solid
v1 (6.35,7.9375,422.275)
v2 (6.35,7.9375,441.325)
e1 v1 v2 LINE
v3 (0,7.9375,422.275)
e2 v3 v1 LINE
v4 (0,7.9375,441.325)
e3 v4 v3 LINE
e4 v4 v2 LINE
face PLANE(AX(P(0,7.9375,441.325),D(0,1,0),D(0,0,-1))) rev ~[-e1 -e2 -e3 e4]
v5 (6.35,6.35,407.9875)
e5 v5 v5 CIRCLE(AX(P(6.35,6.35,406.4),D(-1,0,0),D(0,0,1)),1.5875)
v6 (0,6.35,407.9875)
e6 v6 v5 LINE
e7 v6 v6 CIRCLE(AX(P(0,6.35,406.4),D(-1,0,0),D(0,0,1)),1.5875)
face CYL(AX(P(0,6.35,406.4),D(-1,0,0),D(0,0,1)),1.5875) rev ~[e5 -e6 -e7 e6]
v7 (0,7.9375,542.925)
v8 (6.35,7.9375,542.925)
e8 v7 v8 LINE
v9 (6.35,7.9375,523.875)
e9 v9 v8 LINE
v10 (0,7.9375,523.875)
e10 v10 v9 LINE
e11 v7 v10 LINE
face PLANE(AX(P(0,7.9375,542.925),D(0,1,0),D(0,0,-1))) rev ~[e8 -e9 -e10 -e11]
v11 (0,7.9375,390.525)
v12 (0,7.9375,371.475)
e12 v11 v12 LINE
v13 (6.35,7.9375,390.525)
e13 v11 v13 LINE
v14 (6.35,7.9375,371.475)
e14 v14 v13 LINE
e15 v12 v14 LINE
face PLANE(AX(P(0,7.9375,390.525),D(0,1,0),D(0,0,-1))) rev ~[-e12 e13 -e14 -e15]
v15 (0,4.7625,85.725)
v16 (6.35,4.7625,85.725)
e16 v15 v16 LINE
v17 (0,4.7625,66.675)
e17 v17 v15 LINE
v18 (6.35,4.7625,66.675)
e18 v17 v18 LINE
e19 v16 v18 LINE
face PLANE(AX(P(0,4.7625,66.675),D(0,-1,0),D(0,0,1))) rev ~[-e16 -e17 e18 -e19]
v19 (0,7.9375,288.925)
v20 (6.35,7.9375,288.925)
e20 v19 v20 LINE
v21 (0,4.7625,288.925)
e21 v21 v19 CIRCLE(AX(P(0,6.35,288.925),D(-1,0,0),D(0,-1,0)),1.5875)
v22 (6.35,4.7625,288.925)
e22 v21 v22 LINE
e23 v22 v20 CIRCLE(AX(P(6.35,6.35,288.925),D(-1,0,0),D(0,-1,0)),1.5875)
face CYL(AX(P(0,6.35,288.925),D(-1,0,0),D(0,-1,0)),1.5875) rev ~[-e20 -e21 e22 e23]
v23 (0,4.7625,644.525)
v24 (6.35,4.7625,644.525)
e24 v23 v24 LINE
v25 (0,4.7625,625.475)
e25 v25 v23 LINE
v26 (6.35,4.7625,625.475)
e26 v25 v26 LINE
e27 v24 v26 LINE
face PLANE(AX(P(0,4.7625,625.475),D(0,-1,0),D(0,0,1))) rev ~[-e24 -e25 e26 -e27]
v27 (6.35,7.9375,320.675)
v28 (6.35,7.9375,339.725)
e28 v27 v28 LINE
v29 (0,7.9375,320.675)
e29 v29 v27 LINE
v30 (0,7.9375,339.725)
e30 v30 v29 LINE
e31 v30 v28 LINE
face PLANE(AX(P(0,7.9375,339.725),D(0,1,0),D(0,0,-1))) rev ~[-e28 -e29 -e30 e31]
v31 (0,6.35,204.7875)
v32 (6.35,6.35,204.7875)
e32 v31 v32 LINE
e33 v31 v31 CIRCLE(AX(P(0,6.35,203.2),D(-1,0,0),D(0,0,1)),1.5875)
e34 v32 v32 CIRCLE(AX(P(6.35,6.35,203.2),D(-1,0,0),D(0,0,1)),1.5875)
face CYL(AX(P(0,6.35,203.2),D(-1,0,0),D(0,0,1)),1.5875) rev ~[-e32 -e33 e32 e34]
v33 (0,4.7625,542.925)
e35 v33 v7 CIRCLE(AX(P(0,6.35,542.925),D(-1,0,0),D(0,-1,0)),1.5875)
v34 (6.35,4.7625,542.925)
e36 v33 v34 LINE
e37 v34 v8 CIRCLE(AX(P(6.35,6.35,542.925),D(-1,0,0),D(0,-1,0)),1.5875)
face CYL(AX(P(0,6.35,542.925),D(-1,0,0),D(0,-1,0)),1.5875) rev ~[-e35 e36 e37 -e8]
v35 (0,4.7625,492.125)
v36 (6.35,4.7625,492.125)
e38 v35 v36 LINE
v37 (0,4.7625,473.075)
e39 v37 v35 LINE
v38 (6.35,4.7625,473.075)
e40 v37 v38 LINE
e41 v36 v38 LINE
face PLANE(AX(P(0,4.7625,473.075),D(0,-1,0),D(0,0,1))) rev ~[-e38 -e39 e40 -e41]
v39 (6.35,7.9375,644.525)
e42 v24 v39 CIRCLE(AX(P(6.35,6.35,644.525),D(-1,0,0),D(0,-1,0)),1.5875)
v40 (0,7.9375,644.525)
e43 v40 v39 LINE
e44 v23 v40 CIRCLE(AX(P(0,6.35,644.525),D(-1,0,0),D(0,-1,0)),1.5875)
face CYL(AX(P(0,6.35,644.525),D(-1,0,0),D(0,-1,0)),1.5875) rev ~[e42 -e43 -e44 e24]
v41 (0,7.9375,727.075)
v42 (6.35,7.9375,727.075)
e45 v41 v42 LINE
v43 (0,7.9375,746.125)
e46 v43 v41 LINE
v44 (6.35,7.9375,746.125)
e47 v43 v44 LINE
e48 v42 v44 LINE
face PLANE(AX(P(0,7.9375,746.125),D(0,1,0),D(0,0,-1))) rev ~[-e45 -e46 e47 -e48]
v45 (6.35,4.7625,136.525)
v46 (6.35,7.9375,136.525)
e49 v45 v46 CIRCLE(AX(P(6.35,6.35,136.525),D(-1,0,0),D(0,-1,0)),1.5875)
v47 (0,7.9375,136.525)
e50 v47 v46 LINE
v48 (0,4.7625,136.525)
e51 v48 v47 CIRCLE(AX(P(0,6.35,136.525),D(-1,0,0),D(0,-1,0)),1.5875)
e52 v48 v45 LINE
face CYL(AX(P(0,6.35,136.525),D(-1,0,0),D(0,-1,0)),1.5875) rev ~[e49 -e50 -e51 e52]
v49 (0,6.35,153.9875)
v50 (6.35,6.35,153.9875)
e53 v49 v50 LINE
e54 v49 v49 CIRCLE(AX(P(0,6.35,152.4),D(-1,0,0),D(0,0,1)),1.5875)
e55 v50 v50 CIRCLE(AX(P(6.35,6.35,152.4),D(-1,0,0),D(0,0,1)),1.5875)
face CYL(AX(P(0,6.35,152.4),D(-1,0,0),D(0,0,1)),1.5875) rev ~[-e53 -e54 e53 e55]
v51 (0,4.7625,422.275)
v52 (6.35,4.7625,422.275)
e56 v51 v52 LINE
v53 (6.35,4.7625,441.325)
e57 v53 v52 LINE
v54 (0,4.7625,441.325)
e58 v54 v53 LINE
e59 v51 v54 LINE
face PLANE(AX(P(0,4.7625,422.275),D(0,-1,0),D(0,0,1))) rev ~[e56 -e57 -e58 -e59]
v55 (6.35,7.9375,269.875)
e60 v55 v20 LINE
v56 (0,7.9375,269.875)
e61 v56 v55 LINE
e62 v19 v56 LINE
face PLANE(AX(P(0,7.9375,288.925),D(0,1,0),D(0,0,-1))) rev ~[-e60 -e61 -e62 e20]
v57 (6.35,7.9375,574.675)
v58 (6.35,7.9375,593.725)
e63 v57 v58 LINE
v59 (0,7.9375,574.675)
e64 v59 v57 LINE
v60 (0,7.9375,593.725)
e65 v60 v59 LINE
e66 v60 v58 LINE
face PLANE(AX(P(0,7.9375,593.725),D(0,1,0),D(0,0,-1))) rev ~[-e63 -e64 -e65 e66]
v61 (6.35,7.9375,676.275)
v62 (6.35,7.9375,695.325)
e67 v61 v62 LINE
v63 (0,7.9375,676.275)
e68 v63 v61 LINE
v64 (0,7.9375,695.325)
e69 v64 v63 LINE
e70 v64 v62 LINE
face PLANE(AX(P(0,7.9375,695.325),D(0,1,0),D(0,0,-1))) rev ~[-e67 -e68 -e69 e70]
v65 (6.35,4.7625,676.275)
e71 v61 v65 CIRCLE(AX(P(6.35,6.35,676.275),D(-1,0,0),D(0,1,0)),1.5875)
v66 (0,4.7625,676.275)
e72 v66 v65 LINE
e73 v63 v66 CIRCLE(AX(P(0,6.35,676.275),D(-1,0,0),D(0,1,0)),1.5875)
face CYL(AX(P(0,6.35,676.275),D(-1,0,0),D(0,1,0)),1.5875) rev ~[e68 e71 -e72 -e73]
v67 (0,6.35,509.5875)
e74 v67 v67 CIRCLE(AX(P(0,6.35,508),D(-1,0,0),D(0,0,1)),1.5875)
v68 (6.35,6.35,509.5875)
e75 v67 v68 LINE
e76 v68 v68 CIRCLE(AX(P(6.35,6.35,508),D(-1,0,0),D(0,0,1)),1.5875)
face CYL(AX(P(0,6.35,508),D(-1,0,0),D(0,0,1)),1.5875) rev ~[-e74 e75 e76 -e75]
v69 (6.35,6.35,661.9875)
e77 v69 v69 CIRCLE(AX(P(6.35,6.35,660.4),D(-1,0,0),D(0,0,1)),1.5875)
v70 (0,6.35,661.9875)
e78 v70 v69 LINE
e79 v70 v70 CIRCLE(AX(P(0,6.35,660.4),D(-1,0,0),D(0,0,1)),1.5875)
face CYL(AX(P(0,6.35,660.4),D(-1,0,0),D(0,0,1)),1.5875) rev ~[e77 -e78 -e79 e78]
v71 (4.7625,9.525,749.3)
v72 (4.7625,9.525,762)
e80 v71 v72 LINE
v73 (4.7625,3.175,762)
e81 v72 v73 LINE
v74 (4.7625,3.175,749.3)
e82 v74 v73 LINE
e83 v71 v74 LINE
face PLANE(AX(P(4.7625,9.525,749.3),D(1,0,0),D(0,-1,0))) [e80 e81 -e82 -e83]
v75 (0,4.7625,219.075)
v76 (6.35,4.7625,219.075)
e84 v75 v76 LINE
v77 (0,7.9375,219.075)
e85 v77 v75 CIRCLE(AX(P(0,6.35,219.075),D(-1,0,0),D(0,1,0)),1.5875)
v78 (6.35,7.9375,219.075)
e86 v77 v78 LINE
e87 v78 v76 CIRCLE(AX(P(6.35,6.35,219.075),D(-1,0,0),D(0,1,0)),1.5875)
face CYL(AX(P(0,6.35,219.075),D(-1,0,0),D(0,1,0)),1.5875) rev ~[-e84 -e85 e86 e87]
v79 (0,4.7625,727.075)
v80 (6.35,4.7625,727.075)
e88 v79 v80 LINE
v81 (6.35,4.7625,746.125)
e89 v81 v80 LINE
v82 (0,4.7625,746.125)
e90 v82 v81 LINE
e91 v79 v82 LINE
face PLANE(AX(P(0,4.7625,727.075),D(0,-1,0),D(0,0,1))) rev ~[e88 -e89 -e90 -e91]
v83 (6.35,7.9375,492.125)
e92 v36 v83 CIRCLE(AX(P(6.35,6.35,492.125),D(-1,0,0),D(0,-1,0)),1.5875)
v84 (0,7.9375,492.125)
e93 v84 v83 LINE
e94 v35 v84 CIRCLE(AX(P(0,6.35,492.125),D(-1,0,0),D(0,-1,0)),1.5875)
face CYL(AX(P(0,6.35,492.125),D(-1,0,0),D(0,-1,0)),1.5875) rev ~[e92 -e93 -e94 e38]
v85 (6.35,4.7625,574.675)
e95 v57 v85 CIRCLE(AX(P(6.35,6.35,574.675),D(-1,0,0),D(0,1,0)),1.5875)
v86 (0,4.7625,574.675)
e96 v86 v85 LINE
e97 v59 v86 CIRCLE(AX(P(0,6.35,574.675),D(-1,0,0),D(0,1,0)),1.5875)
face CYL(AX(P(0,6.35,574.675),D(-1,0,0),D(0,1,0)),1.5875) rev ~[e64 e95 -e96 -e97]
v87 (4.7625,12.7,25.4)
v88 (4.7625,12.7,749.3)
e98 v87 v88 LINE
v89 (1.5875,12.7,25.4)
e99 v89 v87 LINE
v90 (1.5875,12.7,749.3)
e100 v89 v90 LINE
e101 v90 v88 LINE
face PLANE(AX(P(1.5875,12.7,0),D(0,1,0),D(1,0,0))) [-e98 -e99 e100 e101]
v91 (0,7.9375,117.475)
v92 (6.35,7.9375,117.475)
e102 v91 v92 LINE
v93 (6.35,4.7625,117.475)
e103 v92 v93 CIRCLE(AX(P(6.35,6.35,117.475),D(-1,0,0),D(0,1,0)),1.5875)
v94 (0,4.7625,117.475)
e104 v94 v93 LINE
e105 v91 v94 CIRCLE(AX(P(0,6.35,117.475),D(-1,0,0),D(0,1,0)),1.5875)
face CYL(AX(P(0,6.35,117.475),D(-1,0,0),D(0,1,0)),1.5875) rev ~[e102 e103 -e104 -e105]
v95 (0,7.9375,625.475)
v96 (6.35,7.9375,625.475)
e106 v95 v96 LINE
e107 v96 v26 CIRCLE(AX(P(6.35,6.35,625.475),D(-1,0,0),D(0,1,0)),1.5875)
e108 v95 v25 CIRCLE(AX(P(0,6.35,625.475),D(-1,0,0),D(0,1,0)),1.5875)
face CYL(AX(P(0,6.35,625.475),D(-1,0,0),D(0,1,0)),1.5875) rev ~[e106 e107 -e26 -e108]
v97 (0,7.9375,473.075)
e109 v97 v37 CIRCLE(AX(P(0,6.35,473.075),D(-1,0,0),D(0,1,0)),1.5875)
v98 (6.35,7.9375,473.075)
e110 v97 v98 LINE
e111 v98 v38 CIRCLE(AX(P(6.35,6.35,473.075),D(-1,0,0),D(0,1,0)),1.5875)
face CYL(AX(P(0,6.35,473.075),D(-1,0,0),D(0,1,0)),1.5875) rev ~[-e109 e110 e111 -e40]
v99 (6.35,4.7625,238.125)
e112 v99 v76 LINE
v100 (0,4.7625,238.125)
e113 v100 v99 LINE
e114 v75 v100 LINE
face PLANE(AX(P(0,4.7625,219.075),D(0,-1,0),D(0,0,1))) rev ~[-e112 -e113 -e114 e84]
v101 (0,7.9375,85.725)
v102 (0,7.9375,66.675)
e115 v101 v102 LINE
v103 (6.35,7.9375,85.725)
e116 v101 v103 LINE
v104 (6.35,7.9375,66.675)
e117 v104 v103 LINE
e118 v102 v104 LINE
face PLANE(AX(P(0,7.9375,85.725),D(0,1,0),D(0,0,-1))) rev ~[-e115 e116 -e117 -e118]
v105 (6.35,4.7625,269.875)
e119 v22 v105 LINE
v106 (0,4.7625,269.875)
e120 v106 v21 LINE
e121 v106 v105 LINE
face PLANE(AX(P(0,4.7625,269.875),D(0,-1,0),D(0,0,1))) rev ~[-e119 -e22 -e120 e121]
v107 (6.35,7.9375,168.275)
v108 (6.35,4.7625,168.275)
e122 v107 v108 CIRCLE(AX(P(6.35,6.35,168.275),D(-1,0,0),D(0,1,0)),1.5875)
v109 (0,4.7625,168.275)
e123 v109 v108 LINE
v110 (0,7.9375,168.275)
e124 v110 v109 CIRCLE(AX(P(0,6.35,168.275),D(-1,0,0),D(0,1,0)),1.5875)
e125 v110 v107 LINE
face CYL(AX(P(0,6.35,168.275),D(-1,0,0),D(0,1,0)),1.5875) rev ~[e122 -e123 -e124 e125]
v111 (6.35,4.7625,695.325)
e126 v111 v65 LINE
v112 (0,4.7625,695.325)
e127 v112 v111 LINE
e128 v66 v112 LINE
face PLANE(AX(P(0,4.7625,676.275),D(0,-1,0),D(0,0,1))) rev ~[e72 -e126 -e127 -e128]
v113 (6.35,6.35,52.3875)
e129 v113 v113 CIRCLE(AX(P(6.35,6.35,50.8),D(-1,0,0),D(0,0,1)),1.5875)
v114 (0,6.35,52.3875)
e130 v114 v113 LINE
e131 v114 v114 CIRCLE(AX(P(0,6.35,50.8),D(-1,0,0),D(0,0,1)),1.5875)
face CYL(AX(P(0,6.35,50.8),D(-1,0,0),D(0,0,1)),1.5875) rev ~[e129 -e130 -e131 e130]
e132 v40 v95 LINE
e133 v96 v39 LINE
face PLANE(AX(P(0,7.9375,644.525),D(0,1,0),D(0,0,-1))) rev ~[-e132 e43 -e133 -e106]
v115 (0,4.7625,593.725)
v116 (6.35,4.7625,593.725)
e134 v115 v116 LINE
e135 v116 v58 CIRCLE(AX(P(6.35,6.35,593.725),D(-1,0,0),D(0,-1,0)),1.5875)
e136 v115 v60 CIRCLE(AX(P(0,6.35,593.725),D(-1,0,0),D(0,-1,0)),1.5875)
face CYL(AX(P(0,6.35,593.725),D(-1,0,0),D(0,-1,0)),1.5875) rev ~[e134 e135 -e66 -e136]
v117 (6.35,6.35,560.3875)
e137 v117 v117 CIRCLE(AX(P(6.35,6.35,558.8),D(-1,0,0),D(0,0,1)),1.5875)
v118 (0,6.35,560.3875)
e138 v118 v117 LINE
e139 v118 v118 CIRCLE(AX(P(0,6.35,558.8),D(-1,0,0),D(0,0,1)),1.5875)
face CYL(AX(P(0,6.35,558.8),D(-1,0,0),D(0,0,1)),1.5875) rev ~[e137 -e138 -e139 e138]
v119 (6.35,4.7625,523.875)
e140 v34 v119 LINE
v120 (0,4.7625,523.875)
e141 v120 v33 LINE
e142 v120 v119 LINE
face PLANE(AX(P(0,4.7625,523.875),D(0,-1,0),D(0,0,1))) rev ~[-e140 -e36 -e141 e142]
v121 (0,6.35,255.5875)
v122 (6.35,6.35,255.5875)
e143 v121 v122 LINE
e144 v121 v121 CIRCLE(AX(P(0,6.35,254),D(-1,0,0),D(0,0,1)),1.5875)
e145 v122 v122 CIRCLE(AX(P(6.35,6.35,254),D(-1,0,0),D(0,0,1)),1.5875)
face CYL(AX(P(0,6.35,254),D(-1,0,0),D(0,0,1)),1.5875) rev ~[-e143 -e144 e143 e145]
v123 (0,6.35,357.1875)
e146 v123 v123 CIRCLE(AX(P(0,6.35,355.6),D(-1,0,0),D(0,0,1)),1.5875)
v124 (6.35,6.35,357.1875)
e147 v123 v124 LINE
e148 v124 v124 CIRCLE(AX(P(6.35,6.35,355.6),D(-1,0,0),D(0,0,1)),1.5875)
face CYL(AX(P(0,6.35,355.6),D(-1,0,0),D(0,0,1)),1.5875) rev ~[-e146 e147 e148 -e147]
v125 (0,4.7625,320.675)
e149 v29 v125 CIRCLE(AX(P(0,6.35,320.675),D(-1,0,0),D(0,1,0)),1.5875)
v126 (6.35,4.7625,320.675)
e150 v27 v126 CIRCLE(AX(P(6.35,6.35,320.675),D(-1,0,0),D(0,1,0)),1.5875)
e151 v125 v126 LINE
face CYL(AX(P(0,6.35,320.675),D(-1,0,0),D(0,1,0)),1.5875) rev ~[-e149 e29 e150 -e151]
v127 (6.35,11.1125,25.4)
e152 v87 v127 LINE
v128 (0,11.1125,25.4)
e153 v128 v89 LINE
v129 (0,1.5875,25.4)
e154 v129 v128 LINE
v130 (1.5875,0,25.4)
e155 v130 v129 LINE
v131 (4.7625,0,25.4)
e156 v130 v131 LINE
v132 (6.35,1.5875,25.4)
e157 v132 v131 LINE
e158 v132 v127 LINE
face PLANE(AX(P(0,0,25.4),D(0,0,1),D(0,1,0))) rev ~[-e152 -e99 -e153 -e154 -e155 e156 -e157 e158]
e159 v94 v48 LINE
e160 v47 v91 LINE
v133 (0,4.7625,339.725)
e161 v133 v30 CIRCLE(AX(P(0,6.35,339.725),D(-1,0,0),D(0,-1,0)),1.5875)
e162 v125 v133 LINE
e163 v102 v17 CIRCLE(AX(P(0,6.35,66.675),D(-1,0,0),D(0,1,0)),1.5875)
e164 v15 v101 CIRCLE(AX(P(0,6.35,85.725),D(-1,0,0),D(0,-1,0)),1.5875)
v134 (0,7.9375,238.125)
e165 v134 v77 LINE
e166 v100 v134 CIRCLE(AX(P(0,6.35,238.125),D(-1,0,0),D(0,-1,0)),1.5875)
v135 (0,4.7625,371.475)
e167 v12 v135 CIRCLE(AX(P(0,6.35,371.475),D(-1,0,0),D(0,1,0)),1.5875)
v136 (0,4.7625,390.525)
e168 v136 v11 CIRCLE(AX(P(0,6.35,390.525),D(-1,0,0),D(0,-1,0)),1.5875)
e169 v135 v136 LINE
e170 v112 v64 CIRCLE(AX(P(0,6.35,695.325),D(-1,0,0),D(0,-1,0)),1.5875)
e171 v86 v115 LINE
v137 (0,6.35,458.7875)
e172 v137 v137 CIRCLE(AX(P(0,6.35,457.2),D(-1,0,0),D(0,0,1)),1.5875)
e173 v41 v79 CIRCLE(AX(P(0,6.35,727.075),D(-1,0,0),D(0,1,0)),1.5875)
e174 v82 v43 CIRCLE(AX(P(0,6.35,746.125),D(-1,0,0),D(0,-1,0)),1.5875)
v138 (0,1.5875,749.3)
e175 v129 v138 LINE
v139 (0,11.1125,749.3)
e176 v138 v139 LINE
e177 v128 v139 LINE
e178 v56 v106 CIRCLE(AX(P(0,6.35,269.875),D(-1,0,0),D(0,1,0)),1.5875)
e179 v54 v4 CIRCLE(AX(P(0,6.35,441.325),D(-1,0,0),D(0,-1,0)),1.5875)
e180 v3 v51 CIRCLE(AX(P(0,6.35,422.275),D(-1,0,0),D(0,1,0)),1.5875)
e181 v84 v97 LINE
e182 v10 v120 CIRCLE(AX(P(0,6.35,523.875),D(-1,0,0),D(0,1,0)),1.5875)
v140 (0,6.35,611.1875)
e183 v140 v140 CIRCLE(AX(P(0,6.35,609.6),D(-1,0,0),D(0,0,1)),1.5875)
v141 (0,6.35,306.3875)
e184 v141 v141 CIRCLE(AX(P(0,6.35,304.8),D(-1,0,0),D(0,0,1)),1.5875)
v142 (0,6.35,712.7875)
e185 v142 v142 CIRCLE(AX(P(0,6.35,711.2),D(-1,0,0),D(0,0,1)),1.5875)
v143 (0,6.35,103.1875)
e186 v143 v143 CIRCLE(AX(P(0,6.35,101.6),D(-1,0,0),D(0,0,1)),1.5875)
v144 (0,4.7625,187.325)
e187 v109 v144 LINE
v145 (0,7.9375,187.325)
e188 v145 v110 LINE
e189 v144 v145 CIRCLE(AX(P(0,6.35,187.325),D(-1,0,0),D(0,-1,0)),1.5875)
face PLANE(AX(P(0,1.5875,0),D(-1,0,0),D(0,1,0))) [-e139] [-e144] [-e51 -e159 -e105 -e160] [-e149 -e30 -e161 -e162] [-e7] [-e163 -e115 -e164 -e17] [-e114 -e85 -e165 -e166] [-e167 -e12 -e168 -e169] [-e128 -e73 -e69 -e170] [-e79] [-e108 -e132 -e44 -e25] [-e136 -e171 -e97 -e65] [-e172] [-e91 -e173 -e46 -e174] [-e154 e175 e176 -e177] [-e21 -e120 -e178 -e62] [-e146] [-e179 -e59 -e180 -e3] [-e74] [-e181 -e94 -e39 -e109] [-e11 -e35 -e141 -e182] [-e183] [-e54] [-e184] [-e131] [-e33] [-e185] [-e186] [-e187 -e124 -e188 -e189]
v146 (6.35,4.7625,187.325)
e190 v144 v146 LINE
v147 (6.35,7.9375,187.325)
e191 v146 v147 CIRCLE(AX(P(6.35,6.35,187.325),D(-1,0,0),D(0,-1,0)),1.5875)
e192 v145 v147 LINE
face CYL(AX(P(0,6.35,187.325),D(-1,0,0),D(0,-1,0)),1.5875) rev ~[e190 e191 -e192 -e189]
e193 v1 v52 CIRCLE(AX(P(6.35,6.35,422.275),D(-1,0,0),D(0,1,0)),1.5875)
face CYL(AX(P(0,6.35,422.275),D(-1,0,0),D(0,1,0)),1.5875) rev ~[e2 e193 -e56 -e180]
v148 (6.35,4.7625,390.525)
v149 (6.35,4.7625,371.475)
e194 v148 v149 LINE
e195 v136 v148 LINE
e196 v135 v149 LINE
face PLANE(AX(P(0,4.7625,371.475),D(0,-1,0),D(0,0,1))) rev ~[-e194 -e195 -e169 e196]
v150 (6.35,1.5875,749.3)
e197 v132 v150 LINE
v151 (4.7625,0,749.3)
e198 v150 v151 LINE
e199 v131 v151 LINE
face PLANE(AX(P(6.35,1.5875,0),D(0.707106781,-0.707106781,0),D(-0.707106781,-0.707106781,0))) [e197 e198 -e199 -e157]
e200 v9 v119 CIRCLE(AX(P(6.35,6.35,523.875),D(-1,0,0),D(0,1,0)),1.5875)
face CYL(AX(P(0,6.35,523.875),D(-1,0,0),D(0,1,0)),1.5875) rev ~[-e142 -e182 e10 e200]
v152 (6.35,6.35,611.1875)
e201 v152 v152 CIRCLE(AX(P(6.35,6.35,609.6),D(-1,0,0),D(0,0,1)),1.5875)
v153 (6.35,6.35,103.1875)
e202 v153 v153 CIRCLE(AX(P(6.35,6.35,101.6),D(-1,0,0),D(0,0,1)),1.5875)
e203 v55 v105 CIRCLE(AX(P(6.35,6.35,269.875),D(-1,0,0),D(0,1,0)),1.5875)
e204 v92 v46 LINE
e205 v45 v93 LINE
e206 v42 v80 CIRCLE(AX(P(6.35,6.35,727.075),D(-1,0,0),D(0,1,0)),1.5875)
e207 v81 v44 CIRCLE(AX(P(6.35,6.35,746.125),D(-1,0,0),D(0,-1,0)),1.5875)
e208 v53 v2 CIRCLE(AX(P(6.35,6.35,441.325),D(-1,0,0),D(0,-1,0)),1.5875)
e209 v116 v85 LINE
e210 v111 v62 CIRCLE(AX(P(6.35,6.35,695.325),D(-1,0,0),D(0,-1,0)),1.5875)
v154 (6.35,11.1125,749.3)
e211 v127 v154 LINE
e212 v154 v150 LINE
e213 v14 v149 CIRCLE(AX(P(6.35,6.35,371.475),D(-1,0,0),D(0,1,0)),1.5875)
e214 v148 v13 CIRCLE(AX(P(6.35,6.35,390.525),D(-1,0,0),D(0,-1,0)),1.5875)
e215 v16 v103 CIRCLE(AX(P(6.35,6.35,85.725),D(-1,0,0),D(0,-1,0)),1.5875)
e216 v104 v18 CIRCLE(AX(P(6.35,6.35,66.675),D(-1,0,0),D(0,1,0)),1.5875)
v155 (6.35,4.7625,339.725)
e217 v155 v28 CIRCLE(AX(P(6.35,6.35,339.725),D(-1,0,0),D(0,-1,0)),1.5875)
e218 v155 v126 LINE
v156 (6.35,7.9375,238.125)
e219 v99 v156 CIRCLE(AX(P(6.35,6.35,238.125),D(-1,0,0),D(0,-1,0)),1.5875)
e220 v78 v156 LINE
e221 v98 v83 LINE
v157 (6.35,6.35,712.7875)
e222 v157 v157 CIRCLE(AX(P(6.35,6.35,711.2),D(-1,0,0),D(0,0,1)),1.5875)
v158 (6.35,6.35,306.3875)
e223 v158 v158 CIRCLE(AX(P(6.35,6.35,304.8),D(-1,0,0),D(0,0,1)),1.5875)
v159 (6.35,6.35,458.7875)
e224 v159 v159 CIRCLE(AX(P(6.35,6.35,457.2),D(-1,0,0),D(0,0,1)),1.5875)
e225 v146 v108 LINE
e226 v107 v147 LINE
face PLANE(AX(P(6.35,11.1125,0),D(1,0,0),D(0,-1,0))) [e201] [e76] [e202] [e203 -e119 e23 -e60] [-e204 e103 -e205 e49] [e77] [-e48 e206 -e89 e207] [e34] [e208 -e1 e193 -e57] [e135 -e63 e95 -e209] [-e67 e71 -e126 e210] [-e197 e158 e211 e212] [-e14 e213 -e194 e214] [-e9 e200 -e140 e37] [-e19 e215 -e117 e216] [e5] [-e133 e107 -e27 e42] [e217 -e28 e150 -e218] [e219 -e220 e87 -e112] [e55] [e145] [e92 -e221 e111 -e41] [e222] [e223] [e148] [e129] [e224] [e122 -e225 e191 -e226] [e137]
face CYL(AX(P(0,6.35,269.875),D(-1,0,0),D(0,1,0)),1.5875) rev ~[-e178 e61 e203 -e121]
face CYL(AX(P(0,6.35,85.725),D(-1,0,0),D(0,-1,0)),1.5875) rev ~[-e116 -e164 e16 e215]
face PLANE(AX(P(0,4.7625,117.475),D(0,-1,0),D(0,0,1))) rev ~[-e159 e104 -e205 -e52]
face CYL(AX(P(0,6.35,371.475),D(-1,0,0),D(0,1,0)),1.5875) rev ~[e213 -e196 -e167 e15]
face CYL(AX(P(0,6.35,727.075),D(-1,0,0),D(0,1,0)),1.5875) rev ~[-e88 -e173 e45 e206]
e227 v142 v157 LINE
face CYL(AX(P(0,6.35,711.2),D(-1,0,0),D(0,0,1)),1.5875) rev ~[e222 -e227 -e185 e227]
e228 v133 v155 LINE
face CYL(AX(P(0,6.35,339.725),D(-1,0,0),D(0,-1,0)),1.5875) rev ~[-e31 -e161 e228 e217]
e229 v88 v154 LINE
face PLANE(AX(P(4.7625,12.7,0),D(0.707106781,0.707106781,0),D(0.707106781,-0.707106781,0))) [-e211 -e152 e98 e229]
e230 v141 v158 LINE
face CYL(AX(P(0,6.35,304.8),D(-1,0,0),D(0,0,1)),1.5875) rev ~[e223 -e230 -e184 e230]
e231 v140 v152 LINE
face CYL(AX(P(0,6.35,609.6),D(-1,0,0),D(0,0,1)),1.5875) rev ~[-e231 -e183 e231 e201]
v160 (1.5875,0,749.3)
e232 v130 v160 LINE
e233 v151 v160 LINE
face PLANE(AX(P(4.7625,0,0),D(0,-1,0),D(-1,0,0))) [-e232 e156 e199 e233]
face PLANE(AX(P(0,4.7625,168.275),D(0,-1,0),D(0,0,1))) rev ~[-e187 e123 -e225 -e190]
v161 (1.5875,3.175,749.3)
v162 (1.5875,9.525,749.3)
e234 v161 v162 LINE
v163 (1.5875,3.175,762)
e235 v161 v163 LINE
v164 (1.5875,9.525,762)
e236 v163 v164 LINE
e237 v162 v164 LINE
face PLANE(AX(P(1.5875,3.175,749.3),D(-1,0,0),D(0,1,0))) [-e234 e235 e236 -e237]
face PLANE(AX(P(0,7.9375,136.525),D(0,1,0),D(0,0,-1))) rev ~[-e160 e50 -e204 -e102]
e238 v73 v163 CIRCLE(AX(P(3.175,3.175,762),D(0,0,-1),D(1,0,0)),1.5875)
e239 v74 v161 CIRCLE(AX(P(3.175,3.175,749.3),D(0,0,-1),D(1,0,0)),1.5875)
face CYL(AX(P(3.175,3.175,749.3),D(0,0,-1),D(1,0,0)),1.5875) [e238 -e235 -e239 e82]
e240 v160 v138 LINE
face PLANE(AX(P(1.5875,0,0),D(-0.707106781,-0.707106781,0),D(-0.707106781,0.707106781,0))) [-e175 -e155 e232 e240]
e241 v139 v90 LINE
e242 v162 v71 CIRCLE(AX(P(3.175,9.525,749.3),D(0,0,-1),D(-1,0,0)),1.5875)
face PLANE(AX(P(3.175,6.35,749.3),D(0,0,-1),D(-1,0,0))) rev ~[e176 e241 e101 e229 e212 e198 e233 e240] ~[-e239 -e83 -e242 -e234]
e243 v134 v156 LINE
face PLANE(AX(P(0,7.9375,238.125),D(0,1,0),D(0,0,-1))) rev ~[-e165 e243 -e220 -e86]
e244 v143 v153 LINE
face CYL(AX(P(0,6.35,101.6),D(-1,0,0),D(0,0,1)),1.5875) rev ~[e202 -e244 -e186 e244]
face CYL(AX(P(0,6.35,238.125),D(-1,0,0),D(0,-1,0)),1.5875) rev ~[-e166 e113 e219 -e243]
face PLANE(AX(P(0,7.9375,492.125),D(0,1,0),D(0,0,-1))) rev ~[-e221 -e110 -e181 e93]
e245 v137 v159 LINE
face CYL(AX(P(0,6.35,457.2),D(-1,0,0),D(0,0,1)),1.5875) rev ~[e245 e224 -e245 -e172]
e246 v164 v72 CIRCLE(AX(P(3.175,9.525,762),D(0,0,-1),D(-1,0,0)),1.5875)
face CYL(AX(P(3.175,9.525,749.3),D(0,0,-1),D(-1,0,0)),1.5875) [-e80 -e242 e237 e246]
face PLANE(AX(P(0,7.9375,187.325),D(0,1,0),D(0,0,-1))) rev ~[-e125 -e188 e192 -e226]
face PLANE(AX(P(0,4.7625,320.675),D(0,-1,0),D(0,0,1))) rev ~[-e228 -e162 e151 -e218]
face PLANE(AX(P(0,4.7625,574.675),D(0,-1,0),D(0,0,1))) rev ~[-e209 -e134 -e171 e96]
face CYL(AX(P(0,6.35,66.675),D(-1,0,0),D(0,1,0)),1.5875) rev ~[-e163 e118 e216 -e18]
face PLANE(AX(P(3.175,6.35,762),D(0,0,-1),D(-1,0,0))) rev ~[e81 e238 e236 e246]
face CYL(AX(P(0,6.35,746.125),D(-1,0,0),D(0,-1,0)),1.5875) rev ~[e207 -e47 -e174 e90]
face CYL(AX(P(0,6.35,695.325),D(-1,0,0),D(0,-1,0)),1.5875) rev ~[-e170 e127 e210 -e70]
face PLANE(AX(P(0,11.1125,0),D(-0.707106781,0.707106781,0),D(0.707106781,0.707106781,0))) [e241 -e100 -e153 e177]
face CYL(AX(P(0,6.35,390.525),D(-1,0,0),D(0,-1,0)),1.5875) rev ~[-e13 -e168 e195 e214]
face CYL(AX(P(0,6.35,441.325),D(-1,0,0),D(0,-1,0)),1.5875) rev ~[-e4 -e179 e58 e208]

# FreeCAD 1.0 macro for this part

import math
import FreeCAD as App
import Part
import Sketcher
from FreeCAD import Vector
Q = App.Units.Quantity

doc = App.newDocument("Part")
body = doc.addObject("PartDesign::Body", "Body")

sketch1 = body.newObject("Sketcher::SketchObject", "Sketch")
sketch1.AttachmentSupport = (doc.getObject("XY_Plane"), [""])
sketch1.MapMode = "FlatFace"
sketch1.addGeometry([
    Part.LineSegment(Vector(1.6, 12.7, 0), Vector(0, 11.1, 0)),
    Part.LineSegment(Vector(0, 11.1, 0), Vector(0, 1.6, 0)),
    Part.LineSegment(Vector(0, 1.6, 0), Vector(1.6, 0, 0)),
    Part.LineSegment(Vector(1.6, 0, 0), Vector(4.8, 0, 0)),
    Part.LineSegment(Vector(4.8, 0, 0), Vector(6.3, 1.6, 0)),
    Part.LineSegment(Vector(6.3, 1.6, 0), Vector(6.3, 11.1, 0)),
    Part.LineSegment(Vector(6.3, 11.1, 0), Vector(4.8, 12.7, 0)),
    Part.LineSegment(Vector(4.8, 12.7, 0), Vector(1.6, 12.7, 0)),
], False)
sketch1.addConstraint([
    Sketcher.Constraint("Coincident", 0, 2, 1, 1),
    Sketcher.Constraint("Coincident", 1, 2, 2, 1),
    Sketcher.Constraint("Coincident", 2, 2, 3, 1),
    Sketcher.Constraint("Coincident", 3, 2, 4, 1),
    Sketcher.Constraint("Coincident", 4, 2, 5, 1),
    Sketcher.Constraint("Coincident", 5, 2, 6, 1),
    Sketcher.Constraint("Coincident", 6, 2, 7, 1),
    Sketcher.Constraint("Coincident", 7, 2, 0, 1),
    Sketcher.Constraint("Vertical", 1),
    Sketcher.Constraint("Horizontal", 3),
    Sketcher.Constraint("Vertical", 5),
    Sketcher.Constraint("Horizontal", 7),
    Sketcher.Constraint("PointOnObject", 0, 2, -2),
    Sketcher.Constraint("PointOnObject", 2, 2, -1),
    Sketcher.Constraint("Perpendicular", 0, 2),
    Sketcher.Constraint("Perpendicular", 2, 4),
    Sketcher.Constraint("Perpendicular", 4, 6),
    Sketcher.Constraint("Horizontal", 1, 2, 4, 2),
    Sketcher.Constraint("Horizontal", 0, 2, 5, 2),
    Sketcher.Constraint("Vertical", 3, 2, 6, 2),
    Sketcher.Constraint("Vertical", 2, 2, 7, 2),
    Sketcher.Constraint("DistanceY", -1, 1, 6, 2, Q("0.5 in")),
    Sketcher.Constraint("DistanceX", 3, 1, 3, 2, Q("0.125 in")),
    Sketcher.Constraint("DistanceY", 1, 2, 1, 1, Q("0.375 in")),
])
pad1 = body.newObject("PartDesign::Pad", "Pad")
pad1.Profile = sketch1
pad1.Length = Q("29.5 in")

sketch2 = body.newObject("Sketcher::SketchObject", "Sketch001")
sketch2.AttachmentSupport = (doc.getObject("XY_Plane"), [""])
sketch2.MapMode = "FlatFace"
sketch2.AttachmentOffset = App.Placement(Vector(0, 0, 29.5 * 25.4), App.Rotation())
sketch2.addGeometry([
    Part.LineSegment(Vector(4.8, 3.2, 0), Vector(4.8, 9.5, 0)),
    Part.ArcOfCircle(Part.Circle(Vector(3.2, 9.5, 0), Vector(0, 0, 1), 1.6), math.radians(0), math.radians(180)),
    Part.LineSegment(Vector(1.6, 9.5, 0), Vector(1.6, 3.2, 0)),
    Part.ArcOfCircle(Part.Circle(Vector(3.2, 3.2, 0), Vector(0, 0, 1), 1.6), math.radians(180), math.radians(360)),
], False)
sketch2.addConstraint([
    Sketcher.Constraint("Tangent", 0, 2, 1, 1),
    Sketcher.Constraint("Tangent", 1, 2, 2, 1),
    Sketcher.Constraint("Tangent", 2, 2, 3, 1),
    Sketcher.Constraint("Tangent", 3, 2, 0, 1),
    Sketcher.Constraint("Vertical", 0),
    Sketcher.Constraint("Vertical", 2),
    Sketcher.Constraint("Radius", 1, Q("0.0625 in")),
    Sketcher.Constraint("DistanceY", 0, 1, 0, 2, Q("0.25 in")),
    Sketcher.Constraint("DistanceX", -1, 1, 1, 3, Q("0.125 in")),
    Sketcher.Constraint("DistanceY", -1, 1, 1, 3, Q("0.375 in")),
])
pad2 = body.newObject("PartDesign::Pad", "Pad001")
pad2.Profile = sketch2
pad2.Length = Q("0.5 in")

sketch3 = body.newObject("Sketcher::SketchObject", "Sketch002")
sketch3.AttachmentSupport = (doc.getObject("YZ_Plane"), [""])
sketch3.MapMode = "FlatFace"
sketch3.addGeometry([
    Part.LineSegment(Vector(13, 0, 0), Vector(0, 0, 0)),
    Part.LineSegment(Vector(0, 0, 0), Vector(0, 25, 0)),
    Part.LineSegment(Vector(0, 25, 0), Vector(13, 25, 0)),
    Part.LineSegment(Vector(13, 25, 0), Vector(13, 0, 0)),
], False)
sketch3.addConstraint([
    Sketcher.Constraint("Coincident", 0, 2, 1, 1),
    Sketcher.Constraint("Coincident", 1, 2, 2, 1),
    Sketcher.Constraint("Coincident", 2, 2, 3, 1),
    Sketcher.Constraint("Coincident", 3, 2, 0, 1),
    Sketcher.Constraint("Horizontal", 0),
    Sketcher.Constraint("Vertical", 1),
    Sketcher.Constraint("Horizontal", 2),
    Sketcher.Constraint("Vertical", 3),
    Sketcher.Constraint("Coincident", 0, 2, -1, 1),
    Sketcher.Constraint("DistanceY", 1, 1, 1, 2, Q("1 in")),
    Sketcher.Constraint("DistanceX", 0, 2, 0, 1, Q("0.5 in")),
])
pocket1 = body.newObject("PartDesign::Pocket", "Pocket")
pocket1.Profile = sketch3
pocket1.Length = Q("0.25 in")
pocket1.Reversed = True

sketch4 = body.newObject("Sketcher::SketchObject", "Sketch003")
sketch4.AttachmentSupport = (doc.getObject("YZ_Plane"), [""])
sketch4.MapMode = "FlatFace"
sketch4.addGeometry([
    Part.LineSegment(Vector(4.8, 117.5, 0), Vector(4.8, 136.5, 0)),
    Part.ArcOfCircle(Part.Circle(Vector(6.3, 136.5, 0), Vector(0, 0, 1), 1.6), math.radians(0), math.radians(180)),
    Part.LineSegment(Vector(7.9, 136.5, 0), Vector(7.9, 117.5, 0)),
    Part.ArcOfCircle(Part.Circle(Vector(6.3, 117.5, 0), Vector(0, 0, 1), 1.6), math.radians(180), math.radians(360)),
    Part.Circle(Vector(6.3, 152.4, 0), Vector(0, 0, 1), 1.6),
    Part.LineSegment(Vector(4.8, 66.7, 0), Vector(4.8, 85.7, 0)),
    Part.ArcOfCircle(Part.Circle(Vector(6.3, 85.7, 0), Vector(0, 0, 1), 1.6), math.radians(0), math.radians(180)),
    Part.LineSegment(Vector(7.9, 85.7, 0), Vector(7.9, 66.7, 0)),
    Part.ArcOfCircle(Part.Circle(Vector(6.3, 66.7, 0), Vector(0, 0, 1), 1.6), math.radians(180), math.radians(360)),
    Part.Circle(Vector(6.3, 101.6, 0), Vector(0, 0, 1), 1.6),
    Part.LineSegment(Vector(4.8, 168.3, 0), Vector(4.8, 187.3, 0)),
    Part.ArcOfCircle(Part.Circle(Vector(6.3, 187.3, 0), Vector(0, 0, 1), 1.6), math.radians(0), math.radians(180)),
    Part.LineSegment(Vector(7.9, 187.3, 0), Vector(7.9, 168.3, 0)),
    Part.ArcOfCircle(Part.Circle(Vector(6.3, 168.3, 0), Vector(0, 0, 1), 1.6), math.radians(180), math.radians(360)),
    Part.Circle(Vector(6.3, 203.2, 0), Vector(0, 0, 1), 1.6),
    Part.LineSegment(Vector(4.8, 219.1, 0), Vector(4.8, 238.1, 0)),
    Part.ArcOfCircle(Part.Circle(Vector(6.3, 238.1, 0), Vector(0, 0, 1), 1.6), math.radians(0), math.radians(180)),
    Part.LineSegment(Vector(7.9, 238.1, 0), Vector(7.9, 219.1, 0)),
    Part.ArcOfCircle(Part.Circle(Vector(6.3, 219.1, 0), Vector(0, 0, 1), 1.6), math.radians(180), math.radians(360)),
    Part.Circle(Vector(6.3, 254, 0), Vector(0, 0, 1), 1.6),
    Part.LineSegment(Vector(4.8, 269.9, 0), Vector(4.8, 288.9, 0)),
    Part.ArcOfCircle(Part.Circle(Vector(6.3, 288.9, 0), Vector(0, 0, 1), 1.6), math.radians(0), math.radians(180)),
    Part.LineSegment(Vector(7.9, 288.9, 0), Vector(7.9, 269.9, 0)),
    Part.ArcOfCircle(Part.Circle(Vector(6.3, 269.9, 0), Vector(0, 0, 1), 1.6), math.radians(180), math.radians(360)),
    Part.Circle(Vector(6.3, 304.8, 0), Vector(0, 0, 1), 1.6),
    Part.LineSegment(Vector(4.8, 320.7, 0), Vector(4.8, 339.7, 0)),
    Part.ArcOfCircle(Part.Circle(Vector(6.3, 339.7, 0), Vector(0, 0, 1), 1.6), math.radians(0), math.radians(180)),
    Part.LineSegment(Vector(7.9, 339.7, 0), Vector(7.9, 320.7, 0)),
    Part.ArcOfCircle(Part.Circle(Vector(6.3, 320.7, 0), Vector(0, 0, 1), 1.6), math.radians(180), math.radians(360)),
    Part.Circle(Vector(6.3, 355.6, 0), Vector(0, 0, 1), 1.6),
    Part.LineSegment(Vector(4.8, 371.5, 0), Vector(4.8, 390.5, 0)),
    Part.ArcOfCircle(Part.Circle(Vector(6.3, 390.5, 0), Vector(0, 0, 1), 1.6), math.radians(0), math.radians(180)),
    Part.LineSegment(Vector(7.9, 390.5, 0), Vector(7.9, 371.5, 0)),
    Part.ArcOfCircle(Part.Circle(Vector(6.3, 371.5, 0), Vector(0, 0, 1), 1.6), math.radians(180), math.radians(360)),
    Part.Circle(Vector(6.3, 406.4, 0), Vector(0, 0, 1), 1.6),
    Part.LineSegment(Vector(4.8, 422.3, 0), Vector(4.8, 441.3, 0)),
    Part.ArcOfCircle(Part.Circle(Vector(6.3, 441.3, 0), Vector(0, 0, 1), 1.6), math.radians(0), math.radians(180)),
    Part.LineSegment(Vector(7.9, 441.3, 0), Vector(7.9, 422.3, 0)),
    Part.ArcOfCircle(Part.Circle(Vector(6.3, 422.3, 0), Vector(0, 0, 1), 1.6), math.radians(180), math.radians(360)),
    Part.Circle(Vector(6.3, 457.2, 0), Vector(0, 0, 1), 1.6),
    Part.LineSegment(Vector(4.8, 473.1, 0), Vector(4.8, 492.1, 0)),
    Part.ArcOfCircle(Part.Circle(Vector(6.3, 492.1, 0), Vector(0, 0, 1), 1.6), math.radians(0), math.radians(180)),
    Part.LineSegment(Vector(7.9, 492.1, 0), Vector(7.9, 473.1, 0)),
    Part.ArcOfCircle(Part.Circle(Vector(6.3, 473.1, 0), Vector(0, 0, 1), 1.6), math.radians(180), math.radians(360)),
    Part.Circle(Vector(6.3, 508, 0), Vector(0, 0, 1), 1.6),
    Part.LineSegment(Vector(4.8, 523.9, 0), Vector(4.8, 542.9, 0)),
    Part.ArcOfCircle(Part.Circle(Vector(6.3, 542.9, 0), Vector(0, 0, 1), 1.6), math.radians(0), math.radians(180)),
    Part.LineSegment(Vector(7.9, 542.9, 0), Vector(7.9, 523.9, 0)),
    Part.ArcOfCircle(Part.Circle(Vector(6.3, 523.9, 0), Vector(0, 0, 1), 1.6), math.radians(180), math.radians(360)),
    Part.Circle(Vector(6.3, 558.8, 0), Vector(0, 0, 1), 1.6),
    Part.LineSegment(Vector(4.8, 574.7, 0), Vector(4.8, 593.7, 0)),
    Part.ArcOfCircle(Part.Circle(Vector(6.3, 593.7, 0), Vector(0, 0, 1), 1.6), math.radians(0), math.radians(180)),
    Part.LineSegment(Vector(7.9, 593.7, 0), Vector(7.9, 574.7, 0)),
    Part.ArcOfCircle(Part.Circle(Vector(6.3, 574.7, 0), Vector(0, 0, 1), 1.6), math.radians(180), math.radians(360)),
    Part.Circle(Vector(6.3, 609.6, 0), Vector(0, 0, 1), 1.6),
    Part.LineSegment(Vector(4.8, 625.5, 0), Vector(4.8, 644.5, 0)),
    Part.ArcOfCircle(Part.Circle(Vector(6.3, 644.5, 0), Vector(0, 0, 1), 1.6), math.radians(0), math.radians(180)),
    Part.LineSegment(Vector(7.9, 644.5, 0), Vector(7.9, 625.5, 0)),
    Part.ArcOfCircle(Part.Circle(Vector(6.3, 625.5, 0), Vector(0, 0, 1), 1.6), math.radians(180), math.radians(360)),
    Part.Circle(Vector(6.3, 660.4, 0), Vector(0, 0, 1), 1.6),
    Part.LineSegment(Vector(4.8, 676.3, 0), Vector(4.8, 695.3, 0)),
    Part.ArcOfCircle(Part.Circle(Vector(6.3, 695.3, 0), Vector(0, 0, 1), 1.6), math.radians(0), math.radians(180)),
    Part.LineSegment(Vector(7.9, 695.3, 0), Vector(7.9, 676.3, 0)),
    Part.ArcOfCircle(Part.Circle(Vector(6.3, 676.3, 0), Vector(0, 0, 1), 1.6), math.radians(180), math.radians(360)),
    Part.Circle(Vector(6.3, 711.2, 0), Vector(0, 0, 1), 1.6),
    Part.LineSegment(Vector(4.8, 727.1, 0), Vector(4.8, 746.1, 0)),
    Part.ArcOfCircle(Part.Circle(Vector(6.3, 746.1, 0), Vector(0, 0, 1), 1.6), math.radians(0), math.radians(180)),
    Part.LineSegment(Vector(7.9, 746.1, 0), Vector(7.9, 727.1, 0)),
    Part.ArcOfCircle(Part.Circle(Vector(6.3, 727.1, 0), Vector(0, 0, 1), 1.6), math.radians(180), math.radians(360)),
], False)
sketch4.addConstraint([
    Sketcher.Constraint("Tangent", 0, 2, 1, 2),
    Sketcher.Constraint("Tangent", 1, 1, 2, 1),
    Sketcher.Constraint("Tangent", 2, 2, 3, 2),
    Sketcher.Constraint("Tangent", 3, 1, 0, 1),
    Sketcher.Constraint("Tangent", 5, 2, 6, 2),
    Sketcher.Constraint("Tangent", 6, 1, 7, 1),
    Sketcher.Constraint("Tangent", 7, 2, 8, 2),
    Sketcher.Constraint("Tangent", 8, 1, 5, 1),
    Sketcher.Constraint("Tangent", 10, 2, 11, 2),
    Sketcher.Constraint("Tangent", 11, 1, 12, 1),
    Sketcher.Constraint("Tangent", 12, 2, 13, 2),
    Sketcher.Constraint("Tangent", 13, 1, 10, 1),
    Sketcher.Constraint("Tangent", 15, 2, 16, 2),
    Sketcher.Constraint("Tangent", 16, 1, 17, 1),
    Sketcher.Constraint("Tangent", 17, 2, 18, 2),
    Sketcher.Constraint("Tangent", 18, 1, 15, 1),
    Sketcher.Constraint("Tangent", 20, 2, 21, 2),
    Sketcher.Constraint("Tangent", 21, 1, 22, 1),
    Sketcher.Constraint("Tangent", 22, 2, 23, 2),
    Sketcher.Constraint("Tangent", 23, 1, 20, 1),
    Sketcher.Constraint("Tangent", 25, 2, 26, 2),
    Sketcher.Constraint("Tangent", 26, 1, 27, 1),
    Sketcher.Constraint("Tangent", 27, 2, 28, 2),
    Sketcher.Constraint("Tangent", 28, 1, 25, 1),
    Sketcher.Constraint("Tangent", 30, 2, 31, 2),
    Sketcher.Constraint("Tangent", 31, 1, 32, 1),
    Sketcher.Constraint("Tangent", 32, 2, 33, 2),
    Sketcher.Constraint("Tangent", 33, 1, 30, 1),
    Sketcher.Constraint("Tangent", 35, 2, 36, 2),
    Sketcher.Constraint("Tangent", 36, 1, 37, 1),
    Sketcher.Constraint("Tangent", 37, 2, 38, 2),
    Sketcher.Constraint("Tangent", 38, 1, 35, 1),
    Sketcher.Constraint("Tangent", 40, 2, 41, 2),
    Sketcher.Constraint("Tangent", 41, 1, 42, 1),
    Sketcher.Constraint("Tangent", 42, 2, 43, 2),
    Sketcher.Constraint("Tangent", 43, 1, 40, 1),
    Sketcher.Constraint("Tangent", 45, 2, 46, 2),
    Sketcher.Constraint("Tangent", 46, 1, 47, 1),
    Sketcher.Constraint("Tangent", 47, 2, 48, 2),
    Sketcher.Constraint("Tangent", 48, 1, 45, 1),
    Sketcher.Constraint("Tangent", 50, 2, 51, 2),
    Sketcher.Constraint("Tangent", 51, 1, 52, 1),
    Sketcher.Constraint("Tangent", 52, 2, 53, 2),
    Sketcher.Constraint("Tangent", 53, 1, 50, 1),
    Sketcher.Constraint("Tangent", 55, 2, 56, 2),
    Sketcher.Constraint("Tangent", 56, 1, 57, 1),
    Sketcher.Constraint("Tangent", 57, 2, 58, 2),
    Sketcher.Constraint("Tangent", 58, 1, 55, 1),
    Sketcher.Constraint("Tangent", 60, 2, 61, 2),
    Sketcher.Constraint("Tangent", 61, 1, 62, 1),
    Sketcher.Constraint("Tangent", 62, 2, 63, 2),
    Sketcher.Constraint("Tangent", 63, 1, 60, 1),
    Sketcher.Constraint("Tangent", 65, 2, 66, 2),
    Sketcher.Constraint("Tangent", 66, 1, 67, 1),
    Sketcher.Constraint("Tangent", 67, 2, 68, 2),
    Sketcher.Constraint("Tangent", 68, 1, 65, 1),
    Sketcher.Constraint("Vertical", 0),
    Sketcher.Constraint("Vertical", 2),
    Sketcher.Constraint("Vertical", 5),
    Sketcher.Constraint("Vertical", 7),
    Sketcher.Constraint("Vertical", 10),
    Sketcher.Constraint("Vertical", 12),
    Sketcher.Constraint("Vertical", 15),
    Sketcher.Constraint("Vertical", 17),
    Sketcher.Constraint("Vertical", 20),
    Sketcher.Constraint("Vertical", 22),
    Sketcher.Constraint("Vertical", 25),
    Sketcher.Constraint("Vertical", 27),
    Sketcher.Constraint("Vertical", 30),
    Sketcher.Constraint("Vertical", 32),
    Sketcher.Constraint("Vertical", 35),
    Sketcher.Constraint("Vertical", 37),
    Sketcher.Constraint("Vertical", 40),
    Sketcher.Constraint("Vertical", 42),
    Sketcher.Constraint("Vertical", 45),
    Sketcher.Constraint("Vertical", 47),
    Sketcher.Constraint("Vertical", 50),
    Sketcher.Constraint("Vertical", 52),
    Sketcher.Constraint("Vertical", 55),
    Sketcher.Constraint("Vertical", 57),
    Sketcher.Constraint("Vertical", 60),
    Sketcher.Constraint("Vertical", 62),
    Sketcher.Constraint("Vertical", 65),
    Sketcher.Constraint("Vertical", 67),
    Sketcher.Constraint("Equal", 3, 4),
    Sketcher.Constraint("Equal", 4, 6),
    Sketcher.Constraint("Equal", 8, 9),
    Sketcher.Constraint("Equal", 9, 11),
    Sketcher.Constraint("Equal", 13, 14),
    Sketcher.Constraint("Equal", 14, 16),
    Sketcher.Constraint("Equal", 18, 19),
    Sketcher.Constraint("Equal", 19, 21),
    Sketcher.Constraint("Equal", 23, 24),
    Sketcher.Constraint("Equal", 24, 26),
    Sketcher.Constraint("Equal", 28, 29),
    Sketcher.Constraint("Equal", 29, 31),
    Sketcher.Constraint("Equal", 33, 34),
    Sketcher.Constraint("Equal", 34, 36),
    Sketcher.Constraint("Equal", 38, 39),
    Sketcher.Constraint("Equal", 39, 41),
    Sketcher.Constraint("Equal", 43, 44),
    Sketcher.Constraint("Equal", 44, 46),
    Sketcher.Constraint("Equal", 48, 49),
    Sketcher.Constraint("Equal", 49, 51),
    Sketcher.Constraint("Equal", 53, 54),
    Sketcher.Constraint("Equal", 54, 56),
    Sketcher.Constraint("Equal", 58, 59),
    Sketcher.Constraint("Equal", 59, 61),
    Sketcher.Constraint("Equal", 63, 64),
    Sketcher.Constraint("Equal", 64, 66),
    Sketcher.Constraint("Vertical", 3, 3, 4, 3),
    Sketcher.Constraint("Vertical", 4, 3, 6, 3),
    Sketcher.Constraint("Vertical", 8, 3, 9, 3),
    Sketcher.Constraint("Vertical", 9, 3, 11, 3),
    Sketcher.Constraint("Vertical", 13, 3, 14, 3),
    Sketcher.Constraint("Vertical", 14, 3, 16, 3),
    Sketcher.Constraint("Vertical", 18, 3, 19, 3),
    Sketcher.Constraint("Vertical", 19, 3, 21, 3),
    Sketcher.Constraint("Vertical", 23, 3, 24, 3),
    Sketcher.Constraint("Vertical", 24, 3, 26, 3),
    Sketcher.Constraint("Vertical", 28, 3, 29, 3),
    Sketcher.Constraint("Vertical", 29, 3, 31, 3),
    Sketcher.Constraint("Vertical", 33, 3, 34, 3),
    Sketcher.Constraint("Vertical", 34, 3, 36, 3),
    Sketcher.Constraint("Vertical", 38, 3, 39, 3),
    Sketcher.Constraint("Vertical", 39, 3, 41, 3),
    Sketcher.Constraint("Vertical", 43, 3, 44, 3),
    Sketcher.Constraint("Vertical", 44, 3, 46, 3),
    Sketcher.Constraint("Vertical", 48, 3, 49, 3),
    Sketcher.Constraint("Vertical", 49, 3, 51, 3),
    Sketcher.Constraint("Vertical", 53, 3, 54, 3),
    Sketcher.Constraint("Vertical", 54, 3, 56, 3),
    Sketcher.Constraint("Vertical", 58, 3, 59, 3),
    Sketcher.Constraint("Vertical", 59, 3, 61, 3),
    Sketcher.Constraint("Vertical", 63, 3, 64, 3),
    Sketcher.Constraint("Vertical", 64, 3, 66, 3),
    Sketcher.Constraint("Equal", 2, 5),
    Sketcher.Constraint("Equal", 7, 10),
    Sketcher.Constraint("Equal", 12, 15),
    Sketcher.Constraint("Equal", 17, 20),
    Sketcher.Constraint("Equal", 22, 25),
    Sketcher.Constraint("Equal", 27, 30),
    Sketcher.Constraint("Equal", 32, 35),
    Sketcher.Constraint("Equal", 37, 40),
    Sketcher.Constraint("Equal", 42, 45),
    Sketcher.Constraint("Equal", 47, 50),
    Sketcher.Constraint("Equal", 52, 55),
    Sketcher.Constraint("Equal", 57, 60),
    Sketcher.Constraint("Equal", 62, 65),
    Sketcher.Constraint("Diameter", 4, Q("0.125 in")),
    Sketcher.Constraint("DistanceY", -1, 1, 4, 3, Q("6 in")),
    Sketcher.Constraint("DistanceY", -1, 1, 9, 3, Q("4 in")),
    Sketcher.Constraint("DistanceY", -1, 1, 14, 3, Q("8 in")),
    Sketcher.Constraint("DistanceY", -1, 1, 19, 3, Q("10 in")),
    Sketcher.Constraint("DistanceY", -1, 1, 24, 3, Q("12 in")),
    Sketcher.Constraint("DistanceY", -1, 1, 29, 3, Q("14 in")),
    Sketcher.Constraint("DistanceY", -1, 1, 34, 3, Q("16 in")),
    Sketcher.Constraint("DistanceY", -1, 1, 39, 3, Q("18 in")),
    Sketcher.Constraint("DistanceY", -1, 1, 44, 3, Q("20 in")),
    Sketcher.Constraint("DistanceY", -1, 1, 49, 3, Q("22 in")),
    Sketcher.Constraint("DistanceY", -1, 1, 54, 3, Q("24 in")),
    Sketcher.Constraint("DistanceY", -1, 1, 59, 3, Q("26 in")),
    Sketcher.Constraint("DistanceY", -1, 1, 64, 3, Q("28 in")),
    Sketcher.Constraint("DistanceY", 0, 1, 0, 2, Q("0.75 in")),
    Sketcher.Constraint("DistanceX", -1, 1, 1, 3, Q("0.25 in")),
    Sketcher.Constraint("DistanceY", -1, 1, 1, 3, Q("5.375 in")),
    Sketcher.Constraint("DistanceY", -1, 1, 6, 3, Q("3.375 in")),
    Sketcher.Constraint("DistanceY", -1, 1, 11, 3, Q("7.375 in")),
    Sketcher.Constraint("DistanceY", -1, 1, 16, 3, Q("9.375 in")),
    Sketcher.Constraint("DistanceY", -1, 1, 21, 3, Q("11.375 in")),
    Sketcher.Constraint("DistanceY", -1, 1, 26, 3, Q("13.375 in")),
    Sketcher.Constraint("DistanceY", -1, 1, 31, 3, Q("15.375 in")),
    Sketcher.Constraint("DistanceY", -1, 1, 36, 3, Q("17.375 in")),
    Sketcher.Constraint("DistanceY", -1, 1, 41, 3, Q("19.375 in")),
    Sketcher.Constraint("DistanceY", -1, 1, 46, 3, Q("21.375 in")),
    Sketcher.Constraint("DistanceY", -1, 1, 51, 3, Q("23.375 in")),
    Sketcher.Constraint("DistanceY", -1, 1, 56, 3, Q("25.375 in")),
    Sketcher.Constraint("DistanceY", -1, 1, 61, 3, Q("27.375 in")),
    Sketcher.Constraint("DistanceY", -1, 1, 66, 3, Q("29.375 in")),
])
pocket2 = body.newObject("PartDesign::Pocket", "Pocket001")
pocket2.Profile = sketch4
pocket2.Length = Q("2.77 in")
pocket2.Reversed = True

sketch5 = body.newObject("Sketcher::SketchObject", "Sketch004")
sketch5.AttachmentSupport = (doc.getObject("YZ_Plane"), [""])
sketch5.MapMode = "FlatFace"
sketch5.addGeometry(Part.Circle(Vector(6.3, 50.8, 0), Vector(0, 0, 1), 1.6), False)
sketch5.addConstraint([
    Sketcher.Constraint("Diameter", 0, Q("0.125 in")),
    Sketcher.Constraint("DistanceY", -1, 1, 0, 3, Q("2 in")),
    Sketcher.Constraint("DistanceX", -1, 1, 0, 3, Q("0.25 in")),
])
pocket3 = body.newObject("PartDesign::Pocket", "Pocket002")
pocket3.Profile = sketch5
pocket3.Length = Q("2.77 in")
pocket3.Reversed = True

doc.recompute()
